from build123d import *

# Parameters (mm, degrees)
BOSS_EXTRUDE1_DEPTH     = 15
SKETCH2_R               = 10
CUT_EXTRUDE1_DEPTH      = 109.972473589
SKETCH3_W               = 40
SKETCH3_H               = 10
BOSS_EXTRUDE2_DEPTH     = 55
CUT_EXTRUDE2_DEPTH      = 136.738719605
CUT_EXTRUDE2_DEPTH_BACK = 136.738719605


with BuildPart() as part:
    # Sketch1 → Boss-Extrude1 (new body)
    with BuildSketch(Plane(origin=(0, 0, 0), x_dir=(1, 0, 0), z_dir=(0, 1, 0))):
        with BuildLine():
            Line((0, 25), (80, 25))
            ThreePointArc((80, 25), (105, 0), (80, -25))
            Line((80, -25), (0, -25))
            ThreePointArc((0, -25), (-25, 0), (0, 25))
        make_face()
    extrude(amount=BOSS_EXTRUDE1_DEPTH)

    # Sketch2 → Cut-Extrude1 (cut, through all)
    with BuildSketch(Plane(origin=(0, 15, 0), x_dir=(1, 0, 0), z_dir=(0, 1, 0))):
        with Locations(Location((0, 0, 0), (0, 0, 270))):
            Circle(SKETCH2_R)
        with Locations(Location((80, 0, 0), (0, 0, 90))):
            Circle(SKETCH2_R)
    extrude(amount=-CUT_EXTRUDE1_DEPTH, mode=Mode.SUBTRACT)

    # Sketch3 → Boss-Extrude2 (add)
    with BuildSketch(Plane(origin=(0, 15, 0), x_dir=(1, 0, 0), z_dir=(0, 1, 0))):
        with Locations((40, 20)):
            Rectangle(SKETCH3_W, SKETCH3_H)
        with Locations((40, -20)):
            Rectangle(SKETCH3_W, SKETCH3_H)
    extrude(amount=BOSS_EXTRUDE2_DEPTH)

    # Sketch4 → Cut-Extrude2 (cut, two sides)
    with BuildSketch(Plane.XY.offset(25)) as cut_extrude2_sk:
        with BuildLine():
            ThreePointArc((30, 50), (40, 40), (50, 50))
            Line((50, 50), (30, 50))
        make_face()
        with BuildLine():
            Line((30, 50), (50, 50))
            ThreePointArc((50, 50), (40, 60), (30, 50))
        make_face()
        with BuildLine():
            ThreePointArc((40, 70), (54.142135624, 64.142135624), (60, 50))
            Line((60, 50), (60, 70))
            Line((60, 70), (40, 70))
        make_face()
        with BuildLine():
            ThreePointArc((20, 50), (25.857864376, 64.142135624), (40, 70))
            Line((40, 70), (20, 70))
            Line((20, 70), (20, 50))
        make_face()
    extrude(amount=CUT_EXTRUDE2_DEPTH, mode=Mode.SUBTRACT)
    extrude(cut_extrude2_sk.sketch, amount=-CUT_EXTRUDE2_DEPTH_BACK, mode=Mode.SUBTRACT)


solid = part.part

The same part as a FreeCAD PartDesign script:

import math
import FreeCAD as App
import Part
import Sketcher


def add_polygon(sketch, points):
    """Adds a closed chain of lines whose ends are joined by coincident constraints."""
    first, n = sketch.GeometryCount, len(points)
    for a, b in zip(points, points[1:] + points[:1]):
        sketch.addGeometry(Part.LineSegment(App.Vector(*a, 0), App.Vector(*b, 0)), False)
    for i in range(n):
        sketch.addConstraint(Sketcher.Constraint("Coincident", first + i, 2, first + (i + 1) % n, 1))

doc = App.newDocument("Part")
body = doc.addObject("PartDesign::Body", "Body")

# Sketch on XZ plane
sketch1 = body.newObject("Sketcher::SketchObject", "Sketch")
sketch1.AttachmentSupport = (doc.getObject("XZ_Plane"), [""])
sketch1.MapMode = "FlatFace"
sketch1.addGeometry([
    Part.LineSegment(App.Vector(80, -25, 0), App.Vector(0, -25, 0)),
    Part.ArcOfCircle(Part.Circle(App.Vector(0, 0, 0), App.Vector(0, 0, 1), 25), math.radians(90), math.radians(270)),
    Part.LineSegment(App.Vector(0, 25, 0), App.Vector(80, 25, 0)),
    Part.ArcOfCircle(Part.Circle(App.Vector(80, 0, 0), App.Vector(0, 0, 1), 25), math.radians(-90), math.radians(90)),
], False)
sketch1.addConstraint([
    Sketcher.Constraint("Tangent", 0, 2, 1, 2),
    Sketcher.Constraint("Tangent", 1, 1, 2, 1),
    Sketcher.Constraint("Tangent", 2, 2, 3, 2),
    Sketcher.Constraint("Tangent", 3, 1, 0, 1),
    Sketcher.Constraint("Horizontal", 0),
    Sketcher.Constraint("Horizontal", 2),
    Sketcher.Constraint("Coincident", 1, 3, -1, 1),
    Sketcher.Constraint("Radius", 1, 25.0),
    Sketcher.Constraint("DistanceX", 0, 2, 0, 1, 80.0),
])
pad1 = body.newObject("PartDesign::Pad", "Pad")
pad1.Profile = sketch1
pad1.Length = 15
pad1.Reversed = True

# Sketch on XZ plane
sketch2 = body.newObject("Sketcher::SketchObject", "Sketch001")
sketch2.AttachmentSupport = (doc.getObject("XZ_Plane"), [""])
sketch2.MapMode = "FlatFace"
sketch2.AttachmentOffset = App.Placement(App.Vector(0, 0, -15), App.Rotation())
sketch2.addGeometry([
    Part.Circle(App.Vector(0, 0, 0), App.Vector(0, 0, 1), 10),
    Part.Circle(App.Vector(80, 0, 0), App.Vector(0, 0, 1), 10),
], False)
sketch2.addConstraint([
    Sketcher.Constraint("Coincident", 0, 3, -1, 1),
    Sketcher.Constraint("Equal", 0, 1),
    Sketcher.Constraint("PointOnObject", 1, 3, -1),
    Sketcher.Constraint("Diameter", 0, 20.0),
    Sketcher.Constraint("DistanceX", -1, 1, 1, 3, 80.0),
])
pocket1 = body.newObject("PartDesign::Pocket", "Pocket")
pocket1.Profile = sketch2
pocket1.Type = "ThroughAll"
pocket1.Reversed = True

# Sketch on XZ plane
sketch3 = body.newObject("Sketcher::SketchObject", "Sketch002")
sketch3.AttachmentSupport = (doc.getObject("XZ_Plane"), [""])
sketch3.MapMode = "FlatFace"
sketch3.AttachmentOffset = App.Placement(App.Vector(0, 0, -15), App.Rotation())
add_polygon(sketch3, [(20, -25), (20, -15), (60, -15), (60, -25)])  # lines 0-3
add_polygon(sketch3, [(20, 15), (20, 25), (60, 25), (60, 15)])  # lines 4-7
sketch3.addConstraint([
    Sketcher.Constraint("Vertical", 0),
    Sketcher.Constraint("Horizontal", 1),
    Sketcher.Constraint("Vertical", 2),
    Sketcher.Constraint("Horizontal", 3),
    Sketcher.Constraint("Vertical", 4),
    Sketcher.Constraint("Horizontal", 5),
    Sketcher.Constraint("Vertical", 6),
    Sketcher.Constraint("Horizontal", 7),
    Sketcher.Constraint("Symmetric", 3, 2, 4, 2, -1),
    Sketcher.Constraint("Symmetric", 1, 2, 6, 2, -1),
    Sketcher.Constraint("DistanceX", 1, 1, 1, 2, 40.0),
    Sketcher.Constraint("DistanceY", 0, 1, 0, 2, 10.0),
    Sketcher.Constraint("DistanceX", -1, 1, 0, 2, 20.0),
    Sketcher.Constraint("DistanceY", 0, 2, -1, 1, 15.0),
])
pad2 = body.newObject("PartDesign::Pad", "Pad001")
pad2.Profile = sketch3
pad2.Length = 55
pad2.Reversed = True

# Sketch on XY plane
sketch4 = body.newObject("Sketcher::SketchObject", "Sketch003")
sketch4.AttachmentSupport = (doc.getObject("XY_Plane"), [""])
sketch4.MapMode = "FlatFace"
sketch4.AttachmentOffset = App.Placement(App.Vector(0, 0, 25), App.Rotation())
sketch4.addGeometry([
    Part.Circle(App.Vector(40, 50, 0), App.Vector(0, 0, 1), 10),  # 0
    Part.ArcOfCircle(Part.Circle(App.Vector(40, 50, 0), App.Vector(0, 0, 1), 20), math.radians(0), math.radians(90)),  # 1
    Part.LineSegment(App.Vector(60, 50, 0), App.Vector(60, 70, 0)),  # 2
    Part.LineSegment(App.Vector(60, 70, 0), App.Vector(40, 70, 0)),  # 3
    Part.ArcOfCircle(Part.Circle(App.Vector(40, 50, 0), App.Vector(0, 0, 1), 20), math.radians(90), math.radians(180)),  # 4
    Part.LineSegment(App.Vector(40, 70, 0), App.Vector(20, 70, 0)),  # 5
    Part.LineSegment(App.Vector(20, 70, 0), App.Vector(20, 50, 0)),  # 6
], False)
sketch4.addConstraint([
    Sketcher.Constraint("Tangent", 1, 1, 2, 1),
    Sketcher.Constraint("Coincident", 2, 2, 3, 1),
    Sketcher.Constraint("Tangent", 3, 2, 1, 2),
    Sketcher.Constraint("Tangent", 4, 1, 5, 1),
    Sketcher.Constraint("Coincident", 5, 2, 6, 1),
    Sketcher.Constraint("Tangent", 6, 2, 4, 2),
    Sketcher.Constraint("Vertical", 2),
    Sketcher.Constraint("Horizontal", 3),
    Sketcher.Constraint("Horizontal", 5),
    Sketcher.Constraint("Vertical", 6),
    Sketcher.Constraint("Coincident", 1, 3, 0, 3),
    Sketcher.Constraint("Coincident", 4, 3, 0, 3),
    Sketcher.Constraint("Equal", 1, 4),
    Sketcher.Constraint("Diameter", 0, 20.0),
    Sketcher.Constraint("Radius", 1, 20.0),
    Sketcher.Constraint("DistanceX", -1, 1, 0, 3, 40.0),
    Sketcher.Constraint("DistanceY", -1, 1, 0, 3, 50.0),
])
pocket2 = body.newObject("PartDesign::Pocket", "Pocket001")
pocket2.Profile = sketch4
pocket2.Type = "ThroughAll"
pocket2.Midplane = True

doc.recompute()
